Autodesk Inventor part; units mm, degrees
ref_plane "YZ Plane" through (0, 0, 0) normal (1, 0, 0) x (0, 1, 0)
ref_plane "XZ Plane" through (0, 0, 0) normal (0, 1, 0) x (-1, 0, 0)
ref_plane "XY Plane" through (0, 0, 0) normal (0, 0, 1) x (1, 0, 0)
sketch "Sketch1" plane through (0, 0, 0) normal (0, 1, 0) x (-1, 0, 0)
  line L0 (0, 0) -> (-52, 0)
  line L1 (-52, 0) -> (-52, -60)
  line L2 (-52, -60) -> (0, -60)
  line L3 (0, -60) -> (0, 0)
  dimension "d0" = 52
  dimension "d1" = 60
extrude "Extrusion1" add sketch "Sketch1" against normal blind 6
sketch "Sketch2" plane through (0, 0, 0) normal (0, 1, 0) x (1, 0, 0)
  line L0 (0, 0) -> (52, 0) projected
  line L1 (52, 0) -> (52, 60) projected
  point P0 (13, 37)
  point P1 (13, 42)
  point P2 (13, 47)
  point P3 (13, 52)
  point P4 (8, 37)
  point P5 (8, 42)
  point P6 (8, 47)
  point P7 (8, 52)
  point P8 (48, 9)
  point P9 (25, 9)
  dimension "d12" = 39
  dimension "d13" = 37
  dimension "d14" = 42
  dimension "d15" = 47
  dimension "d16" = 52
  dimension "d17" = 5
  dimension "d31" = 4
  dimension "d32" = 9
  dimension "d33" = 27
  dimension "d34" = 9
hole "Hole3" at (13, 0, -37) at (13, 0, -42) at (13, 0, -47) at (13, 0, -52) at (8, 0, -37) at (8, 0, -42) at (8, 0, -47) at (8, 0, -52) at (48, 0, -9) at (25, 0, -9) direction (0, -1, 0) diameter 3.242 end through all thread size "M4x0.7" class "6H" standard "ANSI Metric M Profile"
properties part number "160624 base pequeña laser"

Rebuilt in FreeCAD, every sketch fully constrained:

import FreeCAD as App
import Part
import Sketcher

V = App.Vector


def add_polygon(sketch, points):
    """Adds a closed chain of lines whose ends are joined by coincident constraints."""
    first, n = sketch.GeometryCount, len(points)
    for a, b in zip(points, points[1:] + points[:1]):
        sketch.addGeometry(Part.LineSegment(App.Vector(*a, 0), App.Vector(*b, 0)), False)
    for i in range(n):
        sketch.addConstraint(Sketcher.Constraint("Coincident", first + i, 2, first + (i + 1) % n, 1))

doc = App.newDocument("Part")
params = doc.addObject("Spreadsheet::Sheet", "Params")
for row, (alias, value) in enumerate([
    ("sketch1_width", "52 mm"),
    ("sketch1_height", "60 mm"),
    ("pad1_length", "6 mm"),
    ("hole_diameter", "3.242 mm"),
], start=1):
    params.set(f"A{row}", alias)
    params.set(f"B{row}", "=" + value)
    params.setAlias(f"B{row}", alias)

body = doc.addObject("PartDesign::Body", "Body")

# Sketch on XZ plane
sketch1 = body.newObject("Sketcher::SketchObject", "Sketch")
sketch1.AttachmentSupport = (doc.getObject("XZ_Plane"), [""])
sketch1.MapMode = "FlatFace"
add_polygon(sketch1, [(0, -60), (0, 0), (52, 0), (52, -60)])  # lines 0-3
sketch1.addConstraint([
    Sketcher.Constraint("Vertical", 0),
    Sketcher.Constraint("Horizontal", 1),
    Sketcher.Constraint("Vertical", 2),
    Sketcher.Constraint("Horizontal", 3),
    Sketcher.Constraint("Coincident", 0, 2, -1, 1),
    Sketcher.Constraint("DistanceX", 1, 1, 1, 2, 52.0),
    Sketcher.Constraint("DistanceY", 0, 1, 0, 2, 60.0),
])
sketch1.setExpression("Constraints[9]", "Params.sketch1_width")
sketch1.setExpression("Constraints[10]", "Params.sketch1_height")
pad1 = body.newObject("PartDesign::Pad", "Pad")
pad1.Profile = sketch1
pad1.setExpression("Length", "Params.pad1_length")

# Sketch on XZ plane
sketch2 = body.newObject("Sketcher::SketchObject", "Sketch001")
sketch2.AttachmentSupport = (doc.getObject("XZ_Plane"), [""])
sketch2.MapMode = "FlatFace"
sketch2.addGeometry([
    Part.Circle(V(13, -37, 0), V(0, 0, 1), 1.621),  # 0
    Part.Circle(V(13, -42, 0), V(0, 0, 1), 1.621),  # 1
    Part.Circle(V(13, -47, 0), V(0, 0, 1), 1.621),  # 2
    Part.Circle(V(13, -52, 0), V(0, 0, 1), 1.621),  # 3
    Part.Circle(V(8, -37, 0), V(0, 0, 1), 1.621),  # 4
    Part.Circle(V(8, -42, 0), V(0, 0, 1), 1.621),  # 5
    Part.Circle(V(8, -47, 0), V(0, 0, 1), 1.621),  # 6
    Part.Circle(V(8, -52, 0), V(0, 0, 1), 1.621),  # 7
    Part.Circle(V(48, -9, 0), V(0, 0, 1), 1.621),  # 8
    Part.Circle(V(25, -9, 0), V(0, 0, 1), 1.621),  # 9
], False)
sketch2.addConstraint([
    Sketcher.Constraint("Equal", 0, 1),
    Sketcher.Constraint("Equal", 1, 2),
    Sketcher.Constraint("Equal", 2, 3),
    Sketcher.Constraint("Equal", 3, 4),
    Sketcher.Constraint("Equal", 4, 5),
    Sketcher.Constraint("Equal", 5, 6),
    Sketcher.Constraint("Equal", 6, 7),
    Sketcher.Constraint("Equal", 7, 8),
    Sketcher.Constraint("Equal", 8, 9),
    Sketcher.Constraint("Horizontal", 0, 3, 4, 3),
    Sketcher.Constraint("Horizontal", 1, 3, 5, 3),
    Sketcher.Constraint("Horizontal", 2, 3, 6, 3),
    Sketcher.Constraint("Horizontal", 3, 3, 7, 3),
    Sketcher.Constraint("Horizontal", 8, 3, 9, 3),
    Sketcher.Constraint("Vertical", 0, 3, 1, 3),
    Sketcher.Constraint("Vertical", 1, 3, 2, 3),
    Sketcher.Constraint("Vertical", 2, 3, 3, 3),
    Sketcher.Constraint("Vertical", 4, 3, 5, 3),
    Sketcher.Constraint("Vertical", 5, 3, 6, 3),
    Sketcher.Constraint("Vertical", 6, 3, 7, 3),
    Sketcher.Constraint("Diameter", 0, 3.242),
    Sketcher.Constraint("DistanceX", -1, 1, 0, 3, 13.0),
    Sketcher.Constraint("DistanceY", 0, 3, -1, 1, 37.0),
    Sketcher.Constraint("DistanceY", 1, 3, -1, 1, 42.0),
    Sketcher.Constraint("DistanceY", 2, 3, -1, 1, 47.0),
    Sketcher.Constraint("DistanceY", 3, 3, -1, 1, 52.0),
    Sketcher.Constraint("DistanceX", -1, 1, 4, 3, 8.0),
    Sketcher.Constraint("DistanceX", -1, 1, 8, 3, 48.0),
    Sketcher.Constraint("DistanceY", 8, 3, -1, 1, 9.0),
    Sketcher.Constraint("DistanceX", -1, 1, 9, 3, 25.0),
])
doc.recompute()
hole = body.newObject("PartDesign::Hole", "Hole")
hole.Profile = sketch2
hole.ThreadType = "None"
hole.setExpression("Diameter", "Params.hole_diameter")
hole.DepthType = "ThroughAll"
hole.Reversed = True

doc.recompute()
